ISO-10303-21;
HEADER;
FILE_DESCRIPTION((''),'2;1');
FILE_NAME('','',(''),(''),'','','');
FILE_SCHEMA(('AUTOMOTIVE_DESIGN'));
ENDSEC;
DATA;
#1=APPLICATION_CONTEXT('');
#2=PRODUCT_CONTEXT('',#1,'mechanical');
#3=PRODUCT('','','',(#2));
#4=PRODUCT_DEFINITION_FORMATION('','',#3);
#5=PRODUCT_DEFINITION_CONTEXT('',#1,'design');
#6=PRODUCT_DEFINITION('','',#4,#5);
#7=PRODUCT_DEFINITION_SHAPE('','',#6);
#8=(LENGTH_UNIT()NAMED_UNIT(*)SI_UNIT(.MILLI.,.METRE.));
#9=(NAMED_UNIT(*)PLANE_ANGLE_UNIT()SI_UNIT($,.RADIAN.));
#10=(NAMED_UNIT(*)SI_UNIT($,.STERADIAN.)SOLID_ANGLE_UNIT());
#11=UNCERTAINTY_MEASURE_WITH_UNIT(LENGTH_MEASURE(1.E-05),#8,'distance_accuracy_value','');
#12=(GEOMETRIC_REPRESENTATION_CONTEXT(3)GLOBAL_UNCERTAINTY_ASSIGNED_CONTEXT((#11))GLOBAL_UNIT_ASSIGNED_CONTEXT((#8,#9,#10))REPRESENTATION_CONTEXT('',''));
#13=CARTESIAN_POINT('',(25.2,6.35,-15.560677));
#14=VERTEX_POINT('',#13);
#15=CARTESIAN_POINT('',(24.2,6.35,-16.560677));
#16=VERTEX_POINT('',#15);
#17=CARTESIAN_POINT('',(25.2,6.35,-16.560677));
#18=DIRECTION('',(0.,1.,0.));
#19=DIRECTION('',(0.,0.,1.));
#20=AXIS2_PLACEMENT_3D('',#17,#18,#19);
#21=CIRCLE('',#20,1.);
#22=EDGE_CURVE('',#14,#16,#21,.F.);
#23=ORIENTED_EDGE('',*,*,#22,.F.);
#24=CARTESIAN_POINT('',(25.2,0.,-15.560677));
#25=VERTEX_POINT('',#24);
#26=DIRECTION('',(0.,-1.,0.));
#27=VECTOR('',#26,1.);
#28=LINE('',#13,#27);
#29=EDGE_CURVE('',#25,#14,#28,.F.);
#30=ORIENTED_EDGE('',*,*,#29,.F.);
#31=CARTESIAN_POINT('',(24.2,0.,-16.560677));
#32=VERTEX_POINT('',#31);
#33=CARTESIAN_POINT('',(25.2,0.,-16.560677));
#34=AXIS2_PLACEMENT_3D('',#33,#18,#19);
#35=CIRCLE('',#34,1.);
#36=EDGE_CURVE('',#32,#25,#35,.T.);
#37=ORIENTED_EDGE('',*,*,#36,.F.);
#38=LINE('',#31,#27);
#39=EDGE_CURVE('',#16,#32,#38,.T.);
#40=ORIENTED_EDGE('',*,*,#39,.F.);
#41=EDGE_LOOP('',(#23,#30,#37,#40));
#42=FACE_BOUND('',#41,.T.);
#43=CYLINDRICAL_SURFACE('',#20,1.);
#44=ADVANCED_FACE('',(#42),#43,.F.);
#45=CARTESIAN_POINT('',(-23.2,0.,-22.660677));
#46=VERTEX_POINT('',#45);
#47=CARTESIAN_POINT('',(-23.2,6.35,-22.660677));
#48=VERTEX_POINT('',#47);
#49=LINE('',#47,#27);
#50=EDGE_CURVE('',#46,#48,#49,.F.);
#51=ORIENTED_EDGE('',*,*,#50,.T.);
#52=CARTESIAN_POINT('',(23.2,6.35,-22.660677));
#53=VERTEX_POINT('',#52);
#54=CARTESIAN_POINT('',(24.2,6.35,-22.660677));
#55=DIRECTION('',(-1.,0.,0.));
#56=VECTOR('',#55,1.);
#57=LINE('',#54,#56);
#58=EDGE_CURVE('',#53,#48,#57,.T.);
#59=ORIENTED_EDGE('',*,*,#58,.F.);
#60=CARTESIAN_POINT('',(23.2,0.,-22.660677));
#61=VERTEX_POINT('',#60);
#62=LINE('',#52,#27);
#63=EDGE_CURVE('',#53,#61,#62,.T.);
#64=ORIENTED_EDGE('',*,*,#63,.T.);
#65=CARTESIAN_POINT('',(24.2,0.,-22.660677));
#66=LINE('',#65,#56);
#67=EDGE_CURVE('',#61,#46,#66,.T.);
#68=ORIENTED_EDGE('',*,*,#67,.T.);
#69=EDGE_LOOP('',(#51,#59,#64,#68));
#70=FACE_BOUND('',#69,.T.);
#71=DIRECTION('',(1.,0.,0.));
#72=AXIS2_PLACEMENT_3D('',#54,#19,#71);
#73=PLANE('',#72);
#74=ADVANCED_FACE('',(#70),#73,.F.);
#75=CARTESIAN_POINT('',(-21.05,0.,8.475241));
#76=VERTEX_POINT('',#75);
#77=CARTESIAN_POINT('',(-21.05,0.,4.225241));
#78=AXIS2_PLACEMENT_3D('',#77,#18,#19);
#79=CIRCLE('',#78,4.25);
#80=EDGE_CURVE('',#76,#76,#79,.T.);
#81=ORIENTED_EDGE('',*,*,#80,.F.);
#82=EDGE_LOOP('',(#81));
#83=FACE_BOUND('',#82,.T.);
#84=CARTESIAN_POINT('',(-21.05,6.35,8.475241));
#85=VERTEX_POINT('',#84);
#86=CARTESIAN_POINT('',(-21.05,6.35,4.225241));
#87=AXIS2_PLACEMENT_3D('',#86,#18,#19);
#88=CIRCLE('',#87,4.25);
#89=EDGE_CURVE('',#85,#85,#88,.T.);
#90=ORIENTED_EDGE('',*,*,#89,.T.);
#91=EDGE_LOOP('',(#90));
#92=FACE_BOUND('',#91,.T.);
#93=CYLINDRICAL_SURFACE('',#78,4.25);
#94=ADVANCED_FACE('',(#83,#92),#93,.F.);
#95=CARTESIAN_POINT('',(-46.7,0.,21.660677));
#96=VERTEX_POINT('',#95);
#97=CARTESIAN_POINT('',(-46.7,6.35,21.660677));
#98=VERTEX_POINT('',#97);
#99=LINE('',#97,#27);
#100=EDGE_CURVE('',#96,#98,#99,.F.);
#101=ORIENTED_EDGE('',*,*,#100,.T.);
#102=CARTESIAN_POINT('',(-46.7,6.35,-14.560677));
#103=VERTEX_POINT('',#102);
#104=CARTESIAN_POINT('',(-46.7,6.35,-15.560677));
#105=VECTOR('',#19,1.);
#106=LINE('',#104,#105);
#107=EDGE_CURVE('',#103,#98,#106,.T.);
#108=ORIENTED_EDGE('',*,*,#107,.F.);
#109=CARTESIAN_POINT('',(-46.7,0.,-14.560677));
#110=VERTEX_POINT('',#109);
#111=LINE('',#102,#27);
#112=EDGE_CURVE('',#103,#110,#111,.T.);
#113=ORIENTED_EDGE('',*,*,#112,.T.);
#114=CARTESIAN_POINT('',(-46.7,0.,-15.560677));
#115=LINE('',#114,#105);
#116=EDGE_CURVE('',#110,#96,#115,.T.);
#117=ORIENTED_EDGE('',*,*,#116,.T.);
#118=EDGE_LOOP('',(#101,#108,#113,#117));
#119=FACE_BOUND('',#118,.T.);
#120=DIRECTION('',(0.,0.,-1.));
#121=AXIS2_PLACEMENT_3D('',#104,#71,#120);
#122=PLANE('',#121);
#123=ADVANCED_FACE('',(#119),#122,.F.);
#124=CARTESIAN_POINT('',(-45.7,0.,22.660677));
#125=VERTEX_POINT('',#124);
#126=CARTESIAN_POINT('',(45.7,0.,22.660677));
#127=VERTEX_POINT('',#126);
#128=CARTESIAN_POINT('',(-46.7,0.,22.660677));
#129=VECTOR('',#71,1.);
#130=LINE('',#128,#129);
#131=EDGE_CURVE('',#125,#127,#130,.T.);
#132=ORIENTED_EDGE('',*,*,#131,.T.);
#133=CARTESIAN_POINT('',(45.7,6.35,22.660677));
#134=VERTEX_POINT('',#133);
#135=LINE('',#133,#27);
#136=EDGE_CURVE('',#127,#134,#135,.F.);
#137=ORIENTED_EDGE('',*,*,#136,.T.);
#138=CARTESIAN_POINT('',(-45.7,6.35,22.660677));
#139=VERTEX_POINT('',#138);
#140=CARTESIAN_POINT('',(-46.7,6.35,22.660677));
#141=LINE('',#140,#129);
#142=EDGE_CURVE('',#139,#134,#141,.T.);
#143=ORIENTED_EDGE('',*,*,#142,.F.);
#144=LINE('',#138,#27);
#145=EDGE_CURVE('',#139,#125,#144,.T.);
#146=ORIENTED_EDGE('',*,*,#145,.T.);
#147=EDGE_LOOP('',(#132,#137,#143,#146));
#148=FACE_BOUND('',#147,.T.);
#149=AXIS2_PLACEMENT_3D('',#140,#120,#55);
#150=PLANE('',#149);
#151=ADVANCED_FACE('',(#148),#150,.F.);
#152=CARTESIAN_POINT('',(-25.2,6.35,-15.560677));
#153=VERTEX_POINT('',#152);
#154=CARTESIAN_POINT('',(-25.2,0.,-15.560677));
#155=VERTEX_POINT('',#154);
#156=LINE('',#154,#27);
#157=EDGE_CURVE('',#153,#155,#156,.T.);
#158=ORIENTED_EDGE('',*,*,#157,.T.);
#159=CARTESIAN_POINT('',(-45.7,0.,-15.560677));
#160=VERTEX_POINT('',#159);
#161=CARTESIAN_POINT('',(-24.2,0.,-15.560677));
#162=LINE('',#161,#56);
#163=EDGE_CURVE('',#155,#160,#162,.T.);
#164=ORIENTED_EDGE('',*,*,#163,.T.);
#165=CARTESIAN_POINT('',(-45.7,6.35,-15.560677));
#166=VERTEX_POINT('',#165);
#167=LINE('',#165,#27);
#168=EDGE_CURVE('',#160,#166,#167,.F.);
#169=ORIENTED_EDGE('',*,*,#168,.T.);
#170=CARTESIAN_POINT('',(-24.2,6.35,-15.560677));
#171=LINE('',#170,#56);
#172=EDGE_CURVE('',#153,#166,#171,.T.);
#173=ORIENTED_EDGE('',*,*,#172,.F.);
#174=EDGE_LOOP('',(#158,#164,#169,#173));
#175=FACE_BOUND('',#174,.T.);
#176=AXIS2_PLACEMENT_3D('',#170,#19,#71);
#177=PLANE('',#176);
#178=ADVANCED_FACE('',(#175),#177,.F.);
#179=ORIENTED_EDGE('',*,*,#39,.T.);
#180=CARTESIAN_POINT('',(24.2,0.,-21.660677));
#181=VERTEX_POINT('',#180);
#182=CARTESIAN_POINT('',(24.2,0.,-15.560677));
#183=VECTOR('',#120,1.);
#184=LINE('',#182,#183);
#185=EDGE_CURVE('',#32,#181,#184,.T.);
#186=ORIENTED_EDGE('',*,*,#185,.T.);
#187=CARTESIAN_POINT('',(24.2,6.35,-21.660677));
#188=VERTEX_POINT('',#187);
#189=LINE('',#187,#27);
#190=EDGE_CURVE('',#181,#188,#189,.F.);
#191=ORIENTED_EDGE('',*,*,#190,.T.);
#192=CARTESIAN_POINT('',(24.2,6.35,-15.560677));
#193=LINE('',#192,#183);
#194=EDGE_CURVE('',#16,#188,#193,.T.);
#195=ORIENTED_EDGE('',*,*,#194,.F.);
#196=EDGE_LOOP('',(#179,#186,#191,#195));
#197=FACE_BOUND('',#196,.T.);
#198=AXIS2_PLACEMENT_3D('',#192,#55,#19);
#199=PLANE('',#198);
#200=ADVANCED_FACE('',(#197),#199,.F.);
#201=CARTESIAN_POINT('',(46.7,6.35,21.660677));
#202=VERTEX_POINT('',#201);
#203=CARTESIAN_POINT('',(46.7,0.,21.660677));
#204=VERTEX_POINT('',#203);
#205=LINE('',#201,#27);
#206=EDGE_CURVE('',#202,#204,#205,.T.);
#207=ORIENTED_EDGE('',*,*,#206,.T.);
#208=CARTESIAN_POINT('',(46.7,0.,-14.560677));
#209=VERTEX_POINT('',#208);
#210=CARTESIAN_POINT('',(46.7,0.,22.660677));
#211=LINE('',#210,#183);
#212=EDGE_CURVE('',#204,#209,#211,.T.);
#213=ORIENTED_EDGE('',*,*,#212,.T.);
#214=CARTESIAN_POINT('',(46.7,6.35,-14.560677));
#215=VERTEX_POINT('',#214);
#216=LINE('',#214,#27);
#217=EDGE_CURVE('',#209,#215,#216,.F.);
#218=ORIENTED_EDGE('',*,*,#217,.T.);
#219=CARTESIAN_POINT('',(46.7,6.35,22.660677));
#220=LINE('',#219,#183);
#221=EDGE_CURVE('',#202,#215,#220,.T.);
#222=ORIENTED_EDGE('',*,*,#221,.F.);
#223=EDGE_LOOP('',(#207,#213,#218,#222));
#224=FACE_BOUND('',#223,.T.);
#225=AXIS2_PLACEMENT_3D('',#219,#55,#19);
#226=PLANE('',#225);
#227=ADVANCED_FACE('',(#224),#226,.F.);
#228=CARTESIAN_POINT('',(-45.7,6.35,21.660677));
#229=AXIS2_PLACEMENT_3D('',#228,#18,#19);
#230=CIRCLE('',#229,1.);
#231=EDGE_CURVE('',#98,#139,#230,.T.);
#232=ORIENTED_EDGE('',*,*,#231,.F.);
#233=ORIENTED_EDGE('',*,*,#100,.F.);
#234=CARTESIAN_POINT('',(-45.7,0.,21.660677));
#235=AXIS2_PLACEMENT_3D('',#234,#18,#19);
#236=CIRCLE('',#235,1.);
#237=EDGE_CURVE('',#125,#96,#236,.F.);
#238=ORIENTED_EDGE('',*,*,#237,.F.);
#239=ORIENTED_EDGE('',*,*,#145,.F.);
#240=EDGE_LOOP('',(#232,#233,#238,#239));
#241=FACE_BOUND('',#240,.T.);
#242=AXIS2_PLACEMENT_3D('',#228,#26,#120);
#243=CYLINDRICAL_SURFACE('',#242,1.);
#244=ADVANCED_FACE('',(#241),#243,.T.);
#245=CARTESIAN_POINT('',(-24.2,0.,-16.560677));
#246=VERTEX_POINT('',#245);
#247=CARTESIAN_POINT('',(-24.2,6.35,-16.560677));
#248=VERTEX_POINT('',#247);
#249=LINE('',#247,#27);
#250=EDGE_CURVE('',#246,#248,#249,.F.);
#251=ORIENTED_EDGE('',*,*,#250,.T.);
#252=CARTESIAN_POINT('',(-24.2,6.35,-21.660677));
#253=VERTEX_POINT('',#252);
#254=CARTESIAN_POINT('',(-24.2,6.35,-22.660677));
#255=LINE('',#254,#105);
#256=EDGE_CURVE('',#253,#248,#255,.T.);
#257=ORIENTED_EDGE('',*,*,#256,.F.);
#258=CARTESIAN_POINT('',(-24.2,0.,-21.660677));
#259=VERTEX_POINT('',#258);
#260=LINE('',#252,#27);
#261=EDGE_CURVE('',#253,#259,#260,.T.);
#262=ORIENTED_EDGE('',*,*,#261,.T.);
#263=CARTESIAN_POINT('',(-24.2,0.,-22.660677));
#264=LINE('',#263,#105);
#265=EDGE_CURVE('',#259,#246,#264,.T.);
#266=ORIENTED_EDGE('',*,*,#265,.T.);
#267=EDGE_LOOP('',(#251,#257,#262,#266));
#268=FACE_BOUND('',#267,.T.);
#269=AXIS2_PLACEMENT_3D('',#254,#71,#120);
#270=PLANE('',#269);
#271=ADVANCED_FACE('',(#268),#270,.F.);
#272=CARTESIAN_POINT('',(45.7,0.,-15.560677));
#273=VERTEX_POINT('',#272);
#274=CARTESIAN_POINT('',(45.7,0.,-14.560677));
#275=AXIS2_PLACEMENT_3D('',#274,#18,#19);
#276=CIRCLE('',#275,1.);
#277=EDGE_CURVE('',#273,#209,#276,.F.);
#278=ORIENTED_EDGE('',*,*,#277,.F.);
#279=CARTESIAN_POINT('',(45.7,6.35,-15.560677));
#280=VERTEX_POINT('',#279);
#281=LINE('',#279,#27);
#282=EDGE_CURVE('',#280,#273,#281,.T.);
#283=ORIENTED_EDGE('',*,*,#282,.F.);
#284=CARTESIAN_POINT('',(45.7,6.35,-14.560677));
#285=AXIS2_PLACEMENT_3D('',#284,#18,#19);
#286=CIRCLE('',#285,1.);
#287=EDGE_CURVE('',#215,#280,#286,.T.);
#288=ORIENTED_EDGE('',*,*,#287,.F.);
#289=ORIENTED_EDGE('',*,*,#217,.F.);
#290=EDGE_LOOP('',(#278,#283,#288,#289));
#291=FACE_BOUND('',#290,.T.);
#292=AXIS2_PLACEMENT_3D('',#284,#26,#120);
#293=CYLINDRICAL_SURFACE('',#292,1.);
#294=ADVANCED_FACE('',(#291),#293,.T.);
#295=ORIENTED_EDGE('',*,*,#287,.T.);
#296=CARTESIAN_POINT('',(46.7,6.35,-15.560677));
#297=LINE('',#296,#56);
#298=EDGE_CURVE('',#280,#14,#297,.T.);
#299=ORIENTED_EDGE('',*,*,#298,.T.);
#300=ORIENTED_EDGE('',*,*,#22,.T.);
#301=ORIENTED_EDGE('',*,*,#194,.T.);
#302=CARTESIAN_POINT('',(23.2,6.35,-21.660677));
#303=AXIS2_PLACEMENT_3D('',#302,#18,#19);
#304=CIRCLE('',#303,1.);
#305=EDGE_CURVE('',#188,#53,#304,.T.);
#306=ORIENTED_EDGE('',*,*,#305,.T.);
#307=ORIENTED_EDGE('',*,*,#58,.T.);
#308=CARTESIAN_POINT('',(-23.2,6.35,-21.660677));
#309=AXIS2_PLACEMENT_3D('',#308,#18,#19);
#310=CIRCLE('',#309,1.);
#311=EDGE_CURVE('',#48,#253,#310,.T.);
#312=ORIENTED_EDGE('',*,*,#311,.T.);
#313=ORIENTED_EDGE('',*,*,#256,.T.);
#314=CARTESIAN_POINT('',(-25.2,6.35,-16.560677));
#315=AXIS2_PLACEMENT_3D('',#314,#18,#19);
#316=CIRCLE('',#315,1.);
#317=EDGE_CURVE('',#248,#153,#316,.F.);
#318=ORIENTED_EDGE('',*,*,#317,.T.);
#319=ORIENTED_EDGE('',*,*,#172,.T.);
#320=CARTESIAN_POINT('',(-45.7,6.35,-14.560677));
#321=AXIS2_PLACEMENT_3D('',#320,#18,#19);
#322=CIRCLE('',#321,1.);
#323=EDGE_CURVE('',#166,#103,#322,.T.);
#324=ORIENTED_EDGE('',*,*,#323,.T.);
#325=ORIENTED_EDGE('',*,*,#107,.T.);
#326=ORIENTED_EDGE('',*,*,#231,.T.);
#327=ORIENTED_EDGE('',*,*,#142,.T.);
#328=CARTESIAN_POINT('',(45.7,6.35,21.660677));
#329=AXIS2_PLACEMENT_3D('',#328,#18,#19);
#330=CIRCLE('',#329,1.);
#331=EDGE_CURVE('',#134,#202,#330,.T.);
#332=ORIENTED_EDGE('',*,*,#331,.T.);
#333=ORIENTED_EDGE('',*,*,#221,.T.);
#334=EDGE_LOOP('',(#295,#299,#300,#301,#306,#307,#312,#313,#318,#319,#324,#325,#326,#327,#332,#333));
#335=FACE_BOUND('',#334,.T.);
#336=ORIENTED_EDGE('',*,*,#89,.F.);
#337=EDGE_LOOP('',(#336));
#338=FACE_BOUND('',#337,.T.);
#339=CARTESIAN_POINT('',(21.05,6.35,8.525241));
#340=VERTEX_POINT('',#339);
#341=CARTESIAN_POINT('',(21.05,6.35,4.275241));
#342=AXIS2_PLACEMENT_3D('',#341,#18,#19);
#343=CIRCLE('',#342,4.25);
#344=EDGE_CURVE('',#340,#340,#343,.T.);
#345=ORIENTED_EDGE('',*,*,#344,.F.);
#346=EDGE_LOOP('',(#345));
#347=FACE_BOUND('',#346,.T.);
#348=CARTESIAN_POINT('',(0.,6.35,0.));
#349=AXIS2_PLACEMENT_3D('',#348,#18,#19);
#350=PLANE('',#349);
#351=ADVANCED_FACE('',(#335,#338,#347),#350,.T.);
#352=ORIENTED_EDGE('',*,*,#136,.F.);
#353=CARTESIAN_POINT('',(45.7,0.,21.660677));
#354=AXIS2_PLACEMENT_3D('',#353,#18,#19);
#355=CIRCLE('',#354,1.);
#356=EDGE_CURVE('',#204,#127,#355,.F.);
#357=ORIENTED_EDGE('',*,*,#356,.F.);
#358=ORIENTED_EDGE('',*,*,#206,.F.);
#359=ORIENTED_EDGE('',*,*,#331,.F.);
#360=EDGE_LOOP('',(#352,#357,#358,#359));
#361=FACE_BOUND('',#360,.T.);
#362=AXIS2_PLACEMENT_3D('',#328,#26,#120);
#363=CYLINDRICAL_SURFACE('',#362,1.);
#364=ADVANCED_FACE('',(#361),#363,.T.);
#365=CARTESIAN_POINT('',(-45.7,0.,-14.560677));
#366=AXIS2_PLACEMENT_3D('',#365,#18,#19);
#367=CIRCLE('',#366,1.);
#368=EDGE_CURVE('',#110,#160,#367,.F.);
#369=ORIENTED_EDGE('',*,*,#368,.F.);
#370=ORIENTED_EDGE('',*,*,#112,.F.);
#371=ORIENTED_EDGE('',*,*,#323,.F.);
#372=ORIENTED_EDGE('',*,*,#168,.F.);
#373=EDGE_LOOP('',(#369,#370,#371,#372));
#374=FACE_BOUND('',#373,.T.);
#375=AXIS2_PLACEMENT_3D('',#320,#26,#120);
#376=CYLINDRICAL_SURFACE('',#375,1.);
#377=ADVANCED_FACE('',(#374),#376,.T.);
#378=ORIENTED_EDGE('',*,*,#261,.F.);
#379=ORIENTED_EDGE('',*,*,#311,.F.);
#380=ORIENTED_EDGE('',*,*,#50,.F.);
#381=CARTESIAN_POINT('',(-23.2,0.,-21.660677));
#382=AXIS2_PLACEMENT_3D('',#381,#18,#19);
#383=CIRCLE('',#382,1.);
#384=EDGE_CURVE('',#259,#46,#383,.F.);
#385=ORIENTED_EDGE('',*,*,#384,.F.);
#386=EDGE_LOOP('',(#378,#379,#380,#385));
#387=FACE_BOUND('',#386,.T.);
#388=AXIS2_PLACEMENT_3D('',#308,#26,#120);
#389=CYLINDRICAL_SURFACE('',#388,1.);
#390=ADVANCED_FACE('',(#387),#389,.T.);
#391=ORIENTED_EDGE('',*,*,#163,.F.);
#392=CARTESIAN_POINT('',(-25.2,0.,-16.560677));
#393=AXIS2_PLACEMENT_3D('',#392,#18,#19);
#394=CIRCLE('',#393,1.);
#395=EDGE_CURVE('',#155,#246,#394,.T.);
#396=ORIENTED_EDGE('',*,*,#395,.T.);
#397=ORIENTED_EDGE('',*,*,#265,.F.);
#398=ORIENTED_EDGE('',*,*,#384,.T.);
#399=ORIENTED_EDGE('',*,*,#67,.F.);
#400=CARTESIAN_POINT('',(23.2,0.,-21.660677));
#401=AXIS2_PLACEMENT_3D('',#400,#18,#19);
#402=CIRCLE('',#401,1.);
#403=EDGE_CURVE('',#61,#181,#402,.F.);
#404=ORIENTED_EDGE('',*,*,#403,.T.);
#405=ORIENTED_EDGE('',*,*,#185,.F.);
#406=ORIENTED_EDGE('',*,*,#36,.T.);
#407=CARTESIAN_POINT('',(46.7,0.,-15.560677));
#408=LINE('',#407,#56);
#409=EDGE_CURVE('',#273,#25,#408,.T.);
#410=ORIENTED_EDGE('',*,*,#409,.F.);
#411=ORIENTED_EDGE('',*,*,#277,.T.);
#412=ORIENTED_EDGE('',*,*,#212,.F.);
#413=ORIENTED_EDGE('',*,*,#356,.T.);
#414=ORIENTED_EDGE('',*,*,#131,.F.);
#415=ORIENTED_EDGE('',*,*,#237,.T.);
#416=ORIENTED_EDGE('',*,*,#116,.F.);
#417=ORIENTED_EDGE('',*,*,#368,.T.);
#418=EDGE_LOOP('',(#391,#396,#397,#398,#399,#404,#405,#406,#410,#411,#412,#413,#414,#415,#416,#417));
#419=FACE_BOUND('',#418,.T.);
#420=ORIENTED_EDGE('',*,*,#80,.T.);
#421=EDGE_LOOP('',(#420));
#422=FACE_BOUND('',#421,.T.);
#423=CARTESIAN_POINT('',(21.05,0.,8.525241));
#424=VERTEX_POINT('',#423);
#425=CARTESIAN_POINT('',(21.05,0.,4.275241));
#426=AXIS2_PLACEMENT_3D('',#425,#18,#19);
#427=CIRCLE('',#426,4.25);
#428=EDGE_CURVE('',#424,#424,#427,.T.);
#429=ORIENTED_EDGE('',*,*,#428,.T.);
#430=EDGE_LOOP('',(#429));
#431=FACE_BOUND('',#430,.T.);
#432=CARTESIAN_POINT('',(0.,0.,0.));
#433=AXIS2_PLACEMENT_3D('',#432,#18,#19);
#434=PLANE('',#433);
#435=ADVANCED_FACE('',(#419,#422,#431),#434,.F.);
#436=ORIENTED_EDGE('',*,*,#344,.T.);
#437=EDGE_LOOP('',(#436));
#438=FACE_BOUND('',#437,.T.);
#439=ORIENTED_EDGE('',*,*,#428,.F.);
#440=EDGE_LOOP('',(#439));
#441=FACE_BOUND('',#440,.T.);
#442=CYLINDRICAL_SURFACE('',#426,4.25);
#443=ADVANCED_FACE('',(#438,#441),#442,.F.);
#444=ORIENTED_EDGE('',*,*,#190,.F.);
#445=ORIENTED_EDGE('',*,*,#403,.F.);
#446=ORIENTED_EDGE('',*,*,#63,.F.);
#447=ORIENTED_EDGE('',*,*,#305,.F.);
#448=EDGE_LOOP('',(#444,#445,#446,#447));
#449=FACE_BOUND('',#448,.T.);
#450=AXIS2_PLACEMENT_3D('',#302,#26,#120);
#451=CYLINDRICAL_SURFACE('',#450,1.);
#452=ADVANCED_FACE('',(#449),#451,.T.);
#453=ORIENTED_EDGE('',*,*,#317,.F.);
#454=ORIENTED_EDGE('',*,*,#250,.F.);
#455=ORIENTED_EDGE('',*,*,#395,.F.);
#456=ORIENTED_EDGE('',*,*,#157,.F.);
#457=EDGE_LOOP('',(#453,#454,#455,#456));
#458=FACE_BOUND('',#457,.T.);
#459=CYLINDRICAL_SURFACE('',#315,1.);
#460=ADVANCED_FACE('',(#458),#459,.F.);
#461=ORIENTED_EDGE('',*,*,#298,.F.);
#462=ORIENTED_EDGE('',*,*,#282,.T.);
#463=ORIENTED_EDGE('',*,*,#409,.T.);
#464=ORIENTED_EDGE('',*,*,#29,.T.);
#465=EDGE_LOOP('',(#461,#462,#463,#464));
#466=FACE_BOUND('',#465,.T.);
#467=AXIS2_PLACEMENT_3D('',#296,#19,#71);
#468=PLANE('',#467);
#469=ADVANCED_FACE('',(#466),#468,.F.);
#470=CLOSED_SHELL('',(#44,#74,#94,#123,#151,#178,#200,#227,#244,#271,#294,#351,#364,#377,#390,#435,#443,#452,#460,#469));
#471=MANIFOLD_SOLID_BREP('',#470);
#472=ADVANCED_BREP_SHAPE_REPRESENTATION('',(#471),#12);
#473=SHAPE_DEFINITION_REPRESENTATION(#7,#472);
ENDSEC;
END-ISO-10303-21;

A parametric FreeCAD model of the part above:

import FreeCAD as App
import Part
import Sketcher


def edges_at(feature, points):
    """Names of the edges that pass closest to the given points."""
    edges = feature.Shape.Edges
    near = lambda p: min(range(len(edges)), key=lambda i: edges[i].distToShape(Part.Vertex(*p))[0])
    return sorted({f"Edge{near(p) + 1}" for p in points})

doc = App.newDocument("Part")
body = doc.addObject("PartDesign::Body", "Body")

# Sketch on XZ plane
sketch1 = doc.addObject("Sketcher::SketchObject", "Sketch")
body.addObject(sketch1)
sketch1.AttachmentSupport = (doc.XZ_Plane, [""])
sketch1.MapMode = "FlatFace"
sketch1.addGeometry(Part.LineSegment(App.Vector(47, 23, 0), App.Vector(47, -16, 0)), False)
sketch1.addGeometry(Part.LineSegment(App.Vector(47, -16, 0), App.Vector(24, -16, 0)), False)
sketch1.addGeometry(Part.LineSegment(App.Vector(24, -16, 0), App.Vector(24, -23, 0)), False)
sketch1.addGeometry(Part.LineSegment(App.Vector(24, -23, 0), App.Vector(-24, -23, 0)), False)
sketch1.addGeometry(Part.LineSegment(App.Vector(-24, -23, 0), App.Vector(-24, -16, 0)), False)
sketch1.addGeometry(Part.LineSegment(App.Vector(-24, -16, 0), App.Vector(-47, -16, 0)), False)
sketch1.addGeometry(Part.LineSegment(App.Vector(-47, -16, 0), App.Vector(-47, 23, 0)), False)
sketch1.addGeometry(Part.LineSegment(App.Vector(-47, 23, 0), App.Vector(47, 23, 0)), False)
sketch1.addConstraint(Sketcher.Constraint("Coincident", 0, 2, 1, 1))
sketch1.addConstraint(Sketcher.Constraint("Coincident", 1, 2, 2, 1))
sketch1.addConstraint(Sketcher.Constraint("Coincident", 2, 2, 3, 1))
sketch1.addConstraint(Sketcher.Constraint("Coincident", 3, 2, 4, 1))
sketch1.addConstraint(Sketcher.Constraint("Coincident", 4, 2, 5, 1))
sketch1.addConstraint(Sketcher.Constraint("Coincident", 5, 2, 6, 1))
sketch1.addConstraint(Sketcher.Constraint("Coincident", 6, 2, 7, 1))
sketch1.addConstraint(Sketcher.Constraint("Coincident", 7, 2, 0, 1))
sketch1.addConstraint(Sketcher.Constraint("Vertical", 0))
sketch1.addConstraint(Sketcher.Constraint("Horizontal", 1))
sketch1.addConstraint(Sketcher.Constraint("Vertical", 2))
sketch1.addConstraint(Sketcher.Constraint("Horizontal", 3))
sketch1.addConstraint(Sketcher.Constraint("Vertical", 4))
sketch1.addConstraint(Sketcher.Constraint("Horizontal", 5))
sketch1.addConstraint(Sketcher.Constraint("Vertical", 6))
sketch1.addConstraint(Sketcher.Constraint("Horizontal", 7))
sketch1.addConstraint(Sketcher.Constraint("Symmetric", 1, 2, 4, 2, -2))
sketch1.addConstraint(Sketcher.Constraint("Equal", 1, 5))
sketch1.addConstraint(Sketcher.Constraint("DistanceX", 1, 2, 1, 1, 22.5))
sketch1.addConstraint(Sketcher.Constraint("DistanceX", 3, 2, 3, 1, 48.4))
sketch1.addConstraint(Sketcher.Constraint("DistanceY", 2, 2, 2, 1, 7.1))
sketch1.addConstraint(Sketcher.Constraint("DistanceY", 0, 2, 0, 1, 38.221354))
sketch1.addConstraint(Sketcher.Constraint("DistanceY", 0, 2, -1, 1, 15.560677))
pad1 = doc.addObject("PartDesign::Pad", "Pad")
body.addObject(pad1)
pad1.Profile = sketch1
pad1.Length = 6.35
pad1.Reversed = True

# Sketch on XZ plane
sketch2 = doc.addObject("Sketcher::SketchObject", "Sketch001")
body.addObject(sketch2)
sketch2.AttachmentSupport = (doc.XZ_Plane, [""])
sketch2.MapMode = "FlatFace"
sketch2.AttachmentOffset = App.Placement(App.Vector(0, 0, -6.35), App.Rotation())
sketch2.addGeometry(Part.Circle(App.Vector(-21.1, 4.2, 0), App.Vector(0, 0, 1), 4.2), False)
sketch2.addGeometry(Part.Circle(App.Vector(21.1, 4.3, 0), App.Vector(0, 0, 1), 4.2), False)
sketch2.addConstraint(Sketcher.Constraint("Equal", 0, 1))
sketch2.addConstraint(Sketcher.Constraint("Diameter", 0, 8.5))
sketch2.addConstraint(Sketcher.Constraint("DistanceX", 0, 3, 1, 3, 42.1))
sketch2.addConstraint(Sketcher.Constraint("DistanceX", 0, 3, -1, 1, 21.05))
sketch2.addConstraint(Sketcher.Constraint("DistanceY", 0, 3, 1, 3, 0.05))
sketch2.addConstraint(Sketcher.Constraint("DistanceY", -1, 1, 0, 3, 4.225241))
pocket1 = doc.addObject("PartDesign::Pocket", "Pocket")
body.addObject(pocket1)
pocket1.Profile = sketch2
pocket1.Type = "ThroughAll"
pocket1.Reversed = True
doc.recompute()

fillet = doc.addObject("PartDesign::Fillet", "Fillet")
body.addObject(fillet)
fillet.Base = (pocket1, edges_at(pocket1, [
    (-46.7, 3.175, 22.661),
    (-46.7, 3.175, -15.561),
    (-24.2, 3.175, -15.561),
    (-24.2, 3.175, -22.661),
    (24.2, 3.175, -22.661),
    (24.2, 3.175, -15.561),
    (46.7, 3.175, -15.561),
    (46.7, 3.175, 22.661),
]))
fillet.Radius = 1

doc.recompute()
